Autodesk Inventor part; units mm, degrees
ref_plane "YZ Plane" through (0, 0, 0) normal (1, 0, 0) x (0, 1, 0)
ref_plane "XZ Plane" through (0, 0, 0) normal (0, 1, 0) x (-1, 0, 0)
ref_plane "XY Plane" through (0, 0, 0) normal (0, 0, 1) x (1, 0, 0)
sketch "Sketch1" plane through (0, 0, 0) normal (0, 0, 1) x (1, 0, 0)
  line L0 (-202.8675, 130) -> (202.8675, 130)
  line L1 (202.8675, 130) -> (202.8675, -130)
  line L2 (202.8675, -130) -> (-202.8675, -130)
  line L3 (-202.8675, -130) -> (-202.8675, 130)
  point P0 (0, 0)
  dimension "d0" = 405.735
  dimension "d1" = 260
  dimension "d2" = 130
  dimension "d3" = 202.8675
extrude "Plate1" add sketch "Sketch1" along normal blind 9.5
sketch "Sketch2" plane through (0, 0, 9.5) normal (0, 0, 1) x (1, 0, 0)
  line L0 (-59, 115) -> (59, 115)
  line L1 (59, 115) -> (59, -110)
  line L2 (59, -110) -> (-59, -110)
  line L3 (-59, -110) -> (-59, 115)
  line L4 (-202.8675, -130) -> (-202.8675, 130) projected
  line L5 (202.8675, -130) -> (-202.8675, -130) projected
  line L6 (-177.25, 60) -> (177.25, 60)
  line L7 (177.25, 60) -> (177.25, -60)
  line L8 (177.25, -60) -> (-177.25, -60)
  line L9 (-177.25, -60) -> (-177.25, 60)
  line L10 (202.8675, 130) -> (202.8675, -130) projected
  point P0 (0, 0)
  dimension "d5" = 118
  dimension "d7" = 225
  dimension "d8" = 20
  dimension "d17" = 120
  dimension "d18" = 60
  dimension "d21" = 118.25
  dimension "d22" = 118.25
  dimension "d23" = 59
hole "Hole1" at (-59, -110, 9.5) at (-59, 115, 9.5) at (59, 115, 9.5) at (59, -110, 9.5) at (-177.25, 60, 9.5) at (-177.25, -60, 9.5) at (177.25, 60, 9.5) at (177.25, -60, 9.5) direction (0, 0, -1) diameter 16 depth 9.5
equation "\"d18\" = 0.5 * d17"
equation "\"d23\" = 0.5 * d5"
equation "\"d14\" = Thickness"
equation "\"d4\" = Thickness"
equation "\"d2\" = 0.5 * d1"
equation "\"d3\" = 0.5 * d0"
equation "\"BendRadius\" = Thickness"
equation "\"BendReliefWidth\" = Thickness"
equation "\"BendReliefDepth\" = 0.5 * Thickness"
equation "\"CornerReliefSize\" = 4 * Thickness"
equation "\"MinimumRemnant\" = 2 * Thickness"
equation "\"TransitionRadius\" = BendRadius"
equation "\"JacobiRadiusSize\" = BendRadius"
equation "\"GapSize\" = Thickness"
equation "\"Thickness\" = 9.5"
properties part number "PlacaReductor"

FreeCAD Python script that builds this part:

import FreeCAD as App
import Part
import Sketcher
from FreeCAD import Vector

doc = App.newDocument("Part")
params = doc.addObject("Spreadsheet::Sheet", "Params")
for row, (alias, value) in enumerate([
    ("sketch1_height", "260 mm"),
    ("pad1_length", "9.5 mm"),
    ("sketch2_diameter", "16 mm"),
    ("hole_diameter", "16 mm"),
    ("hole_depth", "9.5 mm"),
], start=1):
    params.set(f"A{row}", alias)
    params.set(f"B{row}", "=" + value)
    params.setAlias(f"B{row}", alias)

body = doc.addObject("PartDesign::Body", "Body")

# Sketch on XY plane
sketch1 = body.newObject("Sketcher::SketchObject", "Sketch")
sketch1.AttachmentSupport = (doc.getObject("XY_Plane"), [""])
sketch1.MapMode = "FlatFace"
sketch1.addGeometry([
    Part.LineSegment(Vector(203, 130, 0), Vector(-203, 130, 0)),
    Part.LineSegment(Vector(-203, 130, 0), Vector(-203, -130, 0)),
    Part.LineSegment(Vector(-203, -130, 0), Vector(203, -130, 0)),
    Part.LineSegment(Vector(203, -130, 0), Vector(203, 130, 0)),
], False)
sketch1.addConstraint([
    Sketcher.Constraint("Coincident", 0, 2, 1, 1),
    Sketcher.Constraint("Coincident", 1, 2, 2, 1),
    Sketcher.Constraint("Coincident", 2, 2, 3, 1),
    Sketcher.Constraint("Coincident", 3, 2, 0, 1),
    Sketcher.Constraint("Horizontal", 0),
    Sketcher.Constraint("Vertical", 1),
    Sketcher.Constraint("Horizontal", 2),
    Sketcher.Constraint("Vertical", 3),
    Sketcher.Constraint("Symmetric", 0, 2, 2, 2, -1, 1),
    Sketcher.Constraint("DistanceY", 1, 2, 1, 1, 260.0),
    Sketcher.Constraint("DistanceX", 0, 2, 0, 1, 405.735),
])
sketch1.setExpression("Constraints[9]", "Params.sketch1_height")
pad1 = body.newObject("PartDesign::Pad", "Pad")
pad1.Profile = sketch1
pad1.setExpression("Length", "Params.pad1_length")

# Sketch on XY plane
sketch2 = body.newObject("Sketcher::SketchObject", "Sketch001")
sketch2.AttachmentSupport = (doc.getObject("XY_Plane"), [""])
sketch2.MapMode = "FlatFace"
sketch2.AttachmentOffset = App.Placement(Vector(0, 0, 9.5), App.Rotation())
sketch2.addGeometry([
    Part.Circle(Vector(-59, -110, 0), Vector(0, 0, 1), 8),  # 0
    Part.Circle(Vector(-59, 115, 0), Vector(0, 0, 1), 8),  # 1
    Part.Circle(Vector(59, 115, 0), Vector(0, 0, 1), 8),  # 2
    Part.Circle(Vector(59, -110, 0), Vector(0, 0, 1), 8),  # 3
    Part.Circle(Vector(-177, 60, 0), Vector(0, 0, 1), 8),  # 4
    Part.Circle(Vector(-177, -60, 0), Vector(0, 0, 1), 8),  # 5
    Part.Circle(Vector(177, 60, 0), Vector(0, 0, 1), 8),  # 6
    Part.Circle(Vector(177, -60, 0), Vector(0, 0, 1), 8),  # 7
], False)
sketch2.addConstraint([
    Sketcher.Constraint("Equal", 0, 1),
    Sketcher.Constraint("Equal", 1, 2),
    Sketcher.Constraint("Equal", 2, 3),
    Sketcher.Constraint("Equal", 3, 4),
    Sketcher.Constraint("Equal", 4, 5),
    Sketcher.Constraint("Equal", 5, 6),
    Sketcher.Constraint("Equal", 6, 7),
    Sketcher.Constraint("Symmetric", 5, 3, 6, 3, -1, 1),
    Sketcher.Constraint("Symmetric", 4, 3, 7, 3, -1, 1),
    Sketcher.Constraint("Symmetric", 1, 3, 2, 3, -2),
    Sketcher.Constraint("Symmetric", 0, 3, 3, 3, -2),
    Sketcher.Constraint("Symmetric", 4, 3, 6, 3, -2),
    Sketcher.Constraint("Vertical", 0, 3, 1, 3),
    Sketcher.Constraint("Diameter", 0, 16.0),
    Sketcher.Constraint("DistanceX", 0, 3, -1, 1, 59.0),
    Sketcher.Constraint("DistanceY", 0, 3, -1, 1, 110.0),
    Sketcher.Constraint("DistanceY", -1, 1, 1, 3, 115.0),
    Sketcher.Constraint("DistanceY", -1, 1, 4, 3, 60.0),
    Sketcher.Constraint("DistanceX", 4, 3, 6, 3, 354.5),
])
sketch2.setExpression("Constraints[13]", "Params.sketch2_diameter")
doc.recompute()
hole = body.newObject("PartDesign::Hole", "Hole")
hole.Profile = sketch2
hole.ThreadType = "None"
hole.setExpression("Diameter", "Params.hole_diameter")
hole.DepthType = "Dimension"
hole.setExpression("Depth", "Params.hole_depth")
hole.DrillPoint = "Flat"

doc.recompute()
